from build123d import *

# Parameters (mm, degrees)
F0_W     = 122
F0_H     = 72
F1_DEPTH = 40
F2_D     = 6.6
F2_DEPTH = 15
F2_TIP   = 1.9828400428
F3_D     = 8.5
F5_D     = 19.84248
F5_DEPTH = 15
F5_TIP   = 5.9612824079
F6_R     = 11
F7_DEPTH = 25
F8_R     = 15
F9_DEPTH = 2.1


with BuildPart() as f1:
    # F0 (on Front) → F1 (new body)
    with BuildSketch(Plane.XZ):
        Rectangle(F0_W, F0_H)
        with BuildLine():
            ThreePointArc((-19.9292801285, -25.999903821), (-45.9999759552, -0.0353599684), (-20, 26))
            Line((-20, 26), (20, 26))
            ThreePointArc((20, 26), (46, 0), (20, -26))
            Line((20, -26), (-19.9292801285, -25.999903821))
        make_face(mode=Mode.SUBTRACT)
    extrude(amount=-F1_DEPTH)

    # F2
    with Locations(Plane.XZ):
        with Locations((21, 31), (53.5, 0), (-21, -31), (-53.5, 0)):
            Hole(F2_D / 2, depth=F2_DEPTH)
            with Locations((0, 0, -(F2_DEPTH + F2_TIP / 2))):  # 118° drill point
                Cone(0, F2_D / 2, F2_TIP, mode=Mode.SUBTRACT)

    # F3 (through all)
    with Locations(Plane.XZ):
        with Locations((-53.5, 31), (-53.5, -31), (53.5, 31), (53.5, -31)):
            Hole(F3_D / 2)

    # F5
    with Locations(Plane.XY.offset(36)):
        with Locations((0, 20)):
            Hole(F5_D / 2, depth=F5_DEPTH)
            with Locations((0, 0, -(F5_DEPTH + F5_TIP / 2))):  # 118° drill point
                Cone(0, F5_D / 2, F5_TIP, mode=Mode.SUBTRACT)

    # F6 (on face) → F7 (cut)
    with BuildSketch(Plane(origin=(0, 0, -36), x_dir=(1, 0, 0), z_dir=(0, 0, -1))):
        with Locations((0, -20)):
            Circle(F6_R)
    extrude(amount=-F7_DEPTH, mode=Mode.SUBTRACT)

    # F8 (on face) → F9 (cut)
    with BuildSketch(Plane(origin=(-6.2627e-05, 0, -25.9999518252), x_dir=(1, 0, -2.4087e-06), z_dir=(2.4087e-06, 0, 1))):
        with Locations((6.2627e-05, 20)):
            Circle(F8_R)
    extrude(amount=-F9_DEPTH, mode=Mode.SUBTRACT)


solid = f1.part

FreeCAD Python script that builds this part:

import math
import FreeCAD as App
import Part
import Sketcher
Q = App.Units.Quantity

doc = App.newDocument("Part")
params = doc.addObject("Spreadsheet::Sheet", "Params")
for row, (alias, value) in enumerate([
    ("sketch1_radius", "26 mm"),
    ("sketch1_width", "122 mm"),
    ("sketch1_width2", "40 mm"),
    ("sketch1_height", "72 mm"),
    ("pad1_length", "40 mm"),
    ("sketch2_diameter", "6.6 mm"),
    ("hole_diameter", "6.6 mm"),
    ("hole_depth", "15 mm"),
    ("sketch3_diameter", "8.5 mm"),
    ("hole2_diameter", "8.5 mm"),
    ("hole3_diameter", "19.84248 mm"),
    ("hole3_depth", "15 mm"),
    ("sketch5_diameter", "22 mm"),
    ("pocket1_length", "25 mm"),
    ("sketch6_diameter", "30 mm"),
    ("pocket2_length", "2.1 mm"),
], start=1):
    params.set(f"A{row}", alias)
    params.set(f"B{row}", "=" + value)
    params.setAlias(f"B{row}", alias)

body = doc.addObject("PartDesign::Body", "Body")

sketch1 = body.newObject("Sketcher::SketchObject", "Sketch")
sketch1.AttachmentSupport = (doc.getObject("XZ_Plane"), [""])
sketch1.MapMode = "FlatFace"
sketch1.addGeometry([
    Part.LineSegment(App.Vector(-61, 36, 0), App.Vector(-61, -36, 0)),
    Part.LineSegment(App.Vector(-61, -36, 0), App.Vector(61, -36, 0)),
    Part.LineSegment(App.Vector(61, -36, 0), App.Vector(61, 36, 0)),
    Part.LineSegment(App.Vector(61, 36, 0), App.Vector(-61, 36, 0)),
    Part.LineSegment(App.Vector(20, -26, 0), App.Vector(-19.92928, -25.999904, 0)),
    Part.ArcOfCircle(Part.Circle(App.Vector(-20, 0, 0), App.Vector(0, 0, 1), 26), math.radians(90), math.radians(270.155844)),
    Part.LineSegment(App.Vector(-20, 26, 0), App.Vector(20, 26, 0)),
    Part.ArcOfCircle(Part.Circle(App.Vector(20, 0, 0), App.Vector(0, 0, 1), 26), math.radians(-90), math.radians(90)),
], False)
sketch1.addConstraint([
    Sketcher.Constraint("Coincident", 0, 2, 1, 1),
    Sketcher.Constraint("Coincident", 1, 2, 2, 1),
    Sketcher.Constraint("Coincident", 2, 2, 3, 1),
    Sketcher.Constraint("Coincident", 3, 2, 0, 1),
    Sketcher.Constraint("Coincident", 4, 2, 5, 2),
    Sketcher.Constraint("Tangent", 5, 1, 6, 1),
    Sketcher.Constraint("Tangent", 6, 2, 7, 2),
    Sketcher.Constraint("Coincident", 7, 1, 4, 1),
    Sketcher.Constraint("Vertical", 0),
    Sketcher.Constraint("Horizontal", 1),
    Sketcher.Constraint("Vertical", 2),
    Sketcher.Constraint("Horizontal", 3),
    Sketcher.Constraint("Horizontal", 6),
    Sketcher.Constraint("Equal", 5, 7),
    Sketcher.Constraint("Symmetric", 5, 3, 7, 3, -1, 1),
    Sketcher.Constraint("Symmetric", 0, 2, 2, 2, -1, 1),
    Sketcher.Constraint("Vertical", 6, 2, 7, 1),
    Sketcher.Constraint("Radius", 5, Q("26 mm")),
    Sketcher.Constraint("DistanceX", 1, 1, 1, 2, Q("122 mm")),
    Sketcher.Constraint("DistanceX", 6, 1, 6, 2, Q("40 mm")),
    Sketcher.Constraint("DistanceY", 0, 2, 0, 1, Q("72 mm")),
    Sketcher.Constraint("Distance", 4, Q("39.92928 mm")),
])
sketch1.setExpression("Constraints[17]", "Params.sketch1_radius")
sketch1.setExpression("Constraints[18]", "Params.sketch1_width")
sketch1.setExpression("Constraints[19]", "Params.sketch1_width2")
sketch1.setExpression("Constraints[20]", "Params.sketch1_height")
pad1 = body.newObject("PartDesign::Pad", "Pad")
pad1.Profile = sketch1
pad1.setExpression("Length", "Params.pad1_length")
pad1.Reversed = True

sketch2 = body.newObject("Sketcher::SketchObject", "Sketch001")
sketch2.AttachmentSupport = (doc.getObject("XZ_Plane"), [""])
sketch2.MapMode = "FlatFace"
sketch2.addGeometry([
    Part.Circle(App.Vector(21, 31, 0), App.Vector(0, 0, 1), 3.3),
    Part.Circle(App.Vector(53.5, 0, 0), App.Vector(0, 0, 1), 3.3),
    Part.Circle(App.Vector(-21, -31, 0), App.Vector(0, 0, 1), 3.3),
    Part.Circle(App.Vector(-53.5, 0, 0), App.Vector(0, 0, 1), 3.3),
], False)
sketch2.addConstraint([
    Sketcher.Constraint("Equal", 0, 1),
    Sketcher.Constraint("Equal", 1, 2),
    Sketcher.Constraint("Equal", 2, 3),
    Sketcher.Constraint("Symmetric", 0, 3, 2, 3, -1, 1),
    Sketcher.Constraint("Symmetric", 1, 3, 3, 3, -1, 1),
    Sketcher.Constraint("PointOnObject", 1, 3, -1),
    Sketcher.Constraint("Diameter", 0, Q("6.6 mm")),
    Sketcher.Constraint("DistanceX", -1, 1, 0, 3, Q("21 mm")),
    Sketcher.Constraint("DistanceY", -1, 1, 0, 3, Q("31 mm")),
    Sketcher.Constraint("DistanceX", 3, 3, 1, 3, Q("107 mm")),
])
sketch2.setExpression("Constraints[6]", "Params.sketch2_diameter")
doc.recompute()
hole = body.newObject("PartDesign::Hole", "Hole")
hole.Profile = sketch2
hole.ThreadType = "None"
hole.setExpression("Diameter", "Params.hole_diameter")
hole.DepthType = "Dimension"
hole.setExpression("Depth", "Params.hole_depth")
hole.DrillPoint = "Angled"
hole.DrillPointAngle = 118

sketch3 = body.newObject("Sketcher::SketchObject", "Sketch002")
sketch3.AttachmentSupport = (doc.getObject("XZ_Plane"), [""])
sketch3.MapMode = "FlatFace"
sketch3.addGeometry([
    Part.Circle(App.Vector(-53.5, 31, 0), App.Vector(0, 0, 1), 4.25),
    Part.Circle(App.Vector(-53.5, -31, 0), App.Vector(0, 0, 1), 4.25),
    Part.Circle(App.Vector(53.5, 31, 0), App.Vector(0, 0, 1), 4.25),
    Part.Circle(App.Vector(53.5, -31, 0), App.Vector(0, 0, 1), 4.25),
], False)
sketch3.addConstraint([
    Sketcher.Constraint("Equal", 0, 1),
    Sketcher.Constraint("Equal", 1, 2),
    Sketcher.Constraint("Equal", 2, 3),
    Sketcher.Constraint("Symmetric", 1, 3, 2, 3, -1, 1),
    Sketcher.Constraint("Symmetric", 0, 3, 3, 3, -1, 1),
    Sketcher.Constraint("Symmetric", 0, 3, 2, 3, -2),
    Sketcher.Constraint("Diameter", 0, Q("8.5 mm")),
    Sketcher.Constraint("DistanceY", -1, 1, 0, 3, Q("31 mm")),
    Sketcher.Constraint("DistanceX", 0, 3, 2, 3, Q("107 mm")),
])
sketch3.setExpression("Constraints[6]", "Params.sketch3_diameter")
doc.recompute()
hole2 = body.newObject("PartDesign::Hole", "Hole001")
hole2.Profile = sketch3
hole2.ThreadType = "None"
hole2.setExpression("Diameter", "Params.hole2_diameter")
hole2.DepthType = "ThroughAll"

sketch4 = body.newObject("Sketcher::SketchObject", "Sketch003")
sketch4.AttachmentSupport = (doc.getObject("XY_Plane"), [""])
sketch4.MapMode = "FlatFace"
sketch4.AttachmentOffset = App.Placement(App.Vector(0, 0, 36), App.Rotation())
sketch4.addGeometry(Part.Circle(App.Vector(0, 20, 0), App.Vector(0, 0, 1), 9.92124), False)
sketch4.addConstraint([
    Sketcher.Constraint("PointOnObject", 0, 3, -2),
    Sketcher.Constraint("DistanceY", -1, 1, 0, 3, Q("20 mm")),
    Sketcher.Constraint("Diameter", 0, Q("19.84248 mm")),
])
doc.recompute()
hole3 = body.newObject("PartDesign::Hole", "Hole002")
hole3.Profile = sketch4
hole3.ThreadType = "None"
hole3.setExpression("Diameter", "Params.hole3_diameter")
hole3.DepthType = "Dimension"
hole3.setExpression("Depth", "Params.hole3_depth")
hole3.DrillPoint = "Angled"
hole3.DrillPointAngle = 118

sketch5 = body.newObject("Sketcher::SketchObject", "Sketch004")
sketch5.AttachmentSupport = (doc.getObject("XY_Plane"), [""])
sketch5.MapMode = "FlatFace"
sketch5.AttachmentOffset = App.Placement(App.Vector(0, 0, -36), App.Rotation())
sketch5.addGeometry(Part.Circle(App.Vector(0, 20, 0), App.Vector(0, 0, 1), 11), False)
sketch5.addConstraint([
    Sketcher.Constraint("PointOnObject", 0, 3, -2),
    Sketcher.Constraint("Diameter", 0, Q("22 mm")),
    Sketcher.Constraint("DistanceY", -1, 1, 0, 3, Q("20 mm")),
])
sketch5.setExpression("Constraints[1]", "Params.sketch5_diameter")
pocket1 = body.newObject("PartDesign::Pocket", "Pocket")
pocket1.Profile = sketch5
pocket1.setExpression("Length", "Params.pocket1_length")
pocket1.Reversed = True

sketch6 = body.newObject("Sketcher::SketchObject", "Sketch005")
sketch6.AttachmentSupport = (doc.getObject("XY_Plane"), [""])
sketch6.MapMode = "FlatFace"
sketch6.AttachmentOffset = App.Placement(App.Vector(0, 0, -25.999952), App.Rotation())
sketch6.addGeometry(Part.Circle(App.Vector(0, 20, 0), App.Vector(0, 0, 1), 15), False)
sketch6.addConstraint([
    Sketcher.Constraint("PointOnObject", 0, 3, -2),
    Sketcher.Constraint("Diameter", 0, Q("30 mm")),
    Sketcher.Constraint("DistanceY", -1, 1, 0, 3, Q("20 mm")),
])
sketch6.setExpression("Constraints[1]", "Params.sketch6_diameter")
pocket2 = body.newObject("PartDesign::Pocket", "Pocket001")
pocket2.Profile = sketch6
pocket2.setExpression("Length", "Params.pocket2_length")

doc.recompute()
